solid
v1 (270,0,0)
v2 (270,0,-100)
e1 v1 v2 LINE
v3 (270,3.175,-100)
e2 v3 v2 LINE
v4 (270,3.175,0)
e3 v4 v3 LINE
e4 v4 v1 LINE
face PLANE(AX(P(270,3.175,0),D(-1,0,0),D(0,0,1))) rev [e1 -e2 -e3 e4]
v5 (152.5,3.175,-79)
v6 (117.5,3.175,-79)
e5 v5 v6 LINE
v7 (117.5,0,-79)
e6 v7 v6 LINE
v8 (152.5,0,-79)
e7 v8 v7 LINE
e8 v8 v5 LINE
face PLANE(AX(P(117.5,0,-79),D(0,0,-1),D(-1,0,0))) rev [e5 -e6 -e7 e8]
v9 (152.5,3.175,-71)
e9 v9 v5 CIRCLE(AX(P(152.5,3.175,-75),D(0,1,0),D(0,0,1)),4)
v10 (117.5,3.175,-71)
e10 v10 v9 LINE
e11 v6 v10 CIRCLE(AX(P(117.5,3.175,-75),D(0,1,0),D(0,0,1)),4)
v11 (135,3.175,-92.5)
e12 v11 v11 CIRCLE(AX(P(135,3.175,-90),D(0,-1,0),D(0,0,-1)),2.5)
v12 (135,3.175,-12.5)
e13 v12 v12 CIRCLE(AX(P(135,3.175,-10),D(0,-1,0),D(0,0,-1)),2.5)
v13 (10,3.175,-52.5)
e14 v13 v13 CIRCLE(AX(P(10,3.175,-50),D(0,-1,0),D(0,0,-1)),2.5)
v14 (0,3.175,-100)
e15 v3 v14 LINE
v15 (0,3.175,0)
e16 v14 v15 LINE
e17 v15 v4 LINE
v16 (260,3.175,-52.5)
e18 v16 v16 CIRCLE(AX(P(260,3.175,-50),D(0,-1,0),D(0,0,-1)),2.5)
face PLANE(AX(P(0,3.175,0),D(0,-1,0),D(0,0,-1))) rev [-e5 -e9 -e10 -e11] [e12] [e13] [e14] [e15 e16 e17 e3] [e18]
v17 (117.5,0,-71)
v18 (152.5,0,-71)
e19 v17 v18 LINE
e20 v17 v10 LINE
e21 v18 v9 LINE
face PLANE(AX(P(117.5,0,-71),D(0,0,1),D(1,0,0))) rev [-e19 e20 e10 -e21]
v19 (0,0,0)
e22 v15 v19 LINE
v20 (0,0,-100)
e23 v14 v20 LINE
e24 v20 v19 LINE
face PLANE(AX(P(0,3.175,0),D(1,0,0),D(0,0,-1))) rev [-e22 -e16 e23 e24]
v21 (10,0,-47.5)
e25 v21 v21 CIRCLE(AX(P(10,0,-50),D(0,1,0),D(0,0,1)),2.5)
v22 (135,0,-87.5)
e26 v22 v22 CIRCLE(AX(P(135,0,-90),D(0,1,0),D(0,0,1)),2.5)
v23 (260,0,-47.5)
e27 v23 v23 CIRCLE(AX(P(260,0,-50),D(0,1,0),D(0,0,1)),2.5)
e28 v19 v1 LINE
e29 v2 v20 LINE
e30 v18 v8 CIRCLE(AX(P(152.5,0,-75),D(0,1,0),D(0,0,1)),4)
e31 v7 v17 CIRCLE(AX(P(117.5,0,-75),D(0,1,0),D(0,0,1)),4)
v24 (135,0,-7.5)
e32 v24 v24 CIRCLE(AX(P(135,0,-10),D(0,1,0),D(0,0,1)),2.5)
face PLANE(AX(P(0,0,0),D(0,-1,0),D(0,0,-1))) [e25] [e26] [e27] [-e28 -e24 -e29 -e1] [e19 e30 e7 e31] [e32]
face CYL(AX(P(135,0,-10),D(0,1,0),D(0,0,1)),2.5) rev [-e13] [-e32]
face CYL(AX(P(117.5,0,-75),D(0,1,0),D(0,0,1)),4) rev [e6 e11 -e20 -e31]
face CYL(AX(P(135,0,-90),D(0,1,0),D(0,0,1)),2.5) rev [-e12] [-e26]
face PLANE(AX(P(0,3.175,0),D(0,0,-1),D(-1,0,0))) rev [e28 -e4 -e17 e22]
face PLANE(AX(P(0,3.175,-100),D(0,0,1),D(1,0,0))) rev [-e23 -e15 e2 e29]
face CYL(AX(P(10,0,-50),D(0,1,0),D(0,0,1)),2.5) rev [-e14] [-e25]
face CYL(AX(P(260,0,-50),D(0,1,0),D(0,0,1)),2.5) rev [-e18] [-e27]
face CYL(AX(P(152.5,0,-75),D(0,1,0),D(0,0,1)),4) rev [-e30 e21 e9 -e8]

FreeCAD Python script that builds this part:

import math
import FreeCAD as App
import Part
import Sketcher

V = App.Vector
Q = App.Units.Quantity

doc = App.newDocument("Part")
body = doc.addObject("PartDesign::Body", "Body")

# Sketch on XZ plane
sketch1 = body.newObject("Sketcher::SketchObject", "Sketch")
sketch1.AttachmentSupport = (doc.getObject("XZ_Plane"), [""])
sketch1.MapMode = "FlatFace"
sketch1.addGeometry([
    Part.LineSegment(V(0, -100, 0), V(0, 0, 0)),
    Part.LineSegment(V(0, 0, 0), V(270, 0, 0)),
    Part.LineSegment(V(270, 0, 0), V(270, -100, 0)),
    Part.LineSegment(V(270, -100, 0), V(0, -100, 0)),
], False)
sketch1.addConstraint([
    Sketcher.Constraint("Coincident", 0, 2, 1, 1),
    Sketcher.Constraint("Coincident", 1, 2, 2, 1),
    Sketcher.Constraint("Coincident", 2, 2, 3, 1),
    Sketcher.Constraint("Coincident", 3, 2, 0, 1),
    Sketcher.Constraint("Vertical", 0),
    Sketcher.Constraint("Horizontal", 1),
    Sketcher.Constraint("Vertical", 2),
    Sketcher.Constraint("Horizontal", 3),
    Sketcher.Constraint("Coincident", 0, 2, -1, 1),
    Sketcher.Constraint("DistanceX", 1, 1, 1, 2, Q("270 mm")),
    Sketcher.Constraint("DistanceY", 0, 1, 0, 2, Q("100 mm")),
])
pad1 = body.newObject("PartDesign::Pad", "Pad")
pad1.Profile = sketch1
pad1.Length = 3.175
pad1.Reversed = True
body2 = doc.addObject("PartDesign::Body", "Body001")

# Sketch on XZ plane
sketch2 = body2.newObject("Sketcher::SketchObject", "Sketch001")
sketch2.AttachmentSupport = (doc.getObject("XZ_Plane001"), [""])
sketch2.MapMode = "FlatFace"
sketch2.addGeometry([
    Part.LineSegment(V(0, -245, 0), V(0, -105, 0)),
    Part.LineSegment(V(0, -105, 0), V(270, -105, 0)),
    Part.LineSegment(V(270, -105, 0), V(270, -245, 0)),
    Part.LineSegment(V(270, -245, 0), V(0, -245, 0)),
], False)
sketch2.addConstraint([
    Sketcher.Constraint("Coincident", 0, 2, 1, 1),
    Sketcher.Constraint("Coincident", 1, 2, 2, 1),
    Sketcher.Constraint("Coincident", 2, 2, 3, 1),
    Sketcher.Constraint("Coincident", 3, 2, 0, 1),
    Sketcher.Constraint("Vertical", 0),
    Sketcher.Constraint("Horizontal", 1),
    Sketcher.Constraint("Vertical", 2),
    Sketcher.Constraint("Horizontal", 3),
    Sketcher.Constraint("PointOnObject", 0, 2, -2),
    Sketcher.Constraint("DistanceX", 1, 1, 1, 2, Q("270 mm")),
    Sketcher.Constraint("DistanceY", 0, 1, 0, 2, Q("140 mm")),
    Sketcher.Constraint("DistanceY", 0, 2, -1, 1, Q("105 mm")),
])
pad2 = body2.newObject("PartDesign::Pad", "Pad001")
pad2.Profile = sketch2
pad2.Length = 3.175
pad2.Reversed = True
body3 = doc.addObject("PartDesign::Body", "Body002")
body3.AllowCompound = True

# Sketch on XZ plane
sketch3 = body3.newObject("Sketcher::SketchObject", "Sketch002")
sketch3.AttachmentSupport = (doc.getObject("XZ_Plane002"), [""])
sketch3.MapMode = "FlatFace"
sketch3.AttachmentOffset = App.Placement(V(0, 0, -3.175), App.Rotation())
sketch3.addGeometry([
    Part.Circle(V(10, -175, 0), V(0, 0, 1), 2.5),  # 0
    Part.Circle(V(10, -50, 0), V(0, 0, 1), 2.5),  # 1
    Part.Circle(V(260, -50, 0), V(0, 0, 1), 2.5),  # 2
    Part.Circle(V(260, -175, 0), V(0, 0, 1), 2.5),  # 3
    Part.Circle(V(135, -115, 0), V(0, 0, 1), 2.5),  # 4
    Part.Circle(V(135, -235, 0), V(0, 0, 1), 2.5),  # 5
    Part.Circle(V(135, -90, 0), V(0, 0, 1), 2.5),  # 6
    Part.Circle(V(135, -10, 0), V(0, 0, 1), 2.5),  # 7
    Part.LineSegment(V(152.5, -79, 0), V(117.5, -79, 0)),  # 8
    Part.ArcOfCircle(Part.Circle(V(117.5, -75, 0), V(0, 0, 1), 4), math.radians(90), math.radians(270)),  # 9
    Part.LineSegment(V(117.5, -71, 0), V(152.5, -71, 0)),  # 10
    Part.ArcOfCircle(Part.Circle(V(152.5, -75, 0), V(0, 0, 1), 4), math.radians(-90), math.radians(90)),  # 11
], False)
sketch3.addConstraint([
    Sketcher.Constraint("Tangent", 8, 2, 9, 2),
    Sketcher.Constraint("Tangent", 9, 1, 10, 1),
    Sketcher.Constraint("Tangent", 10, 2, 11, 2),
    Sketcher.Constraint("Tangent", 11, 1, 8, 1),
    Sketcher.Constraint("Horizontal", 8),
    Sketcher.Constraint("Horizontal", 10),
    Sketcher.Constraint("Equal", 0, 1),
    Sketcher.Constraint("Equal", 1, 2),
    Sketcher.Constraint("Equal", 2, 3),
    Sketcher.Constraint("Equal", 3, 4),
    Sketcher.Constraint("Equal", 4, 5),
    Sketcher.Constraint("Equal", 5, 6),
    Sketcher.Constraint("Equal", 6, 7),
    Sketcher.Constraint("Horizontal", 1, 3, 2, 3),
    Sketcher.Constraint("Horizontal", 0, 3, 3, 3),
    Sketcher.Constraint("Vertical", 0, 3, 1, 3),
    Sketcher.Constraint("Vertical", 2, 3, 3, 3),
    Sketcher.Constraint("Vertical", 4, 3, 5, 3),
    Sketcher.Constraint("Vertical", 5, 3, 6, 3),
    Sketcher.Constraint("Vertical", 6, 3, 7, 3),
    Sketcher.Constraint("Diameter", 0, Q("5 mm")),
    Sketcher.Constraint("Radius", 9, Q("4 mm")),
    Sketcher.Constraint("DistanceX", 8, 2, 8, 1, Q("35 mm")),
    Sketcher.Constraint("DistanceX", -1, 1, 0, 3, Q("10 mm")),
    Sketcher.Constraint("DistanceY", 0, 3, -1, 1, Q("175 mm")),
    Sketcher.Constraint("DistanceY", 1, 3, -1, 1, Q("50 mm")),
    Sketcher.Constraint("DistanceX", -1, 1, 2, 3, Q("260 mm")),
    Sketcher.Constraint("DistanceX", -1, 1, 4, 3, Q("135 mm")),
    Sketcher.Constraint("DistanceY", 4, 3, -1, 1, Q("115 mm")),
    Sketcher.Constraint("DistanceY", 5, 3, -1, 1, Q("235 mm")),
    Sketcher.Constraint("DistanceY", 6, 3, -1, 1, Q("90 mm")),
    Sketcher.Constraint("DistanceY", 7, 3, -1, 1, Q("10 mm")),
    Sketcher.Constraint("DistanceY", 9, 3, -1, 1, Q("75 mm")),
    Sketcher.Constraint("DistanceX", -1, 1, 9, 3, Q("117.5 mm")),
])
pad3 = body3.newObject("PartDesign::Pad", "Pad002")
pad3.Profile = sketch3
pad3.Type = "TwoLengths"
pad3.Length = 1
pad3.Length2 = 4.175
pad3.Reversed = True
doc.recompute()

body4 = doc.addObject("PartDesign::Body", "Body003")
body4.BaseFeature = body3
boolean = body.newObject("PartDesign::Boolean", "Boolean")
boolean.Type = "Cut"
boolean.addObjects([body4])
doc.recompute()

boolean2 = body2.newObject("PartDesign::Boolean", "Boolean001")
boolean2.Type = "Cut"
boolean2.addObjects([body3])
body2.Visibility = False

doc.recompute()
